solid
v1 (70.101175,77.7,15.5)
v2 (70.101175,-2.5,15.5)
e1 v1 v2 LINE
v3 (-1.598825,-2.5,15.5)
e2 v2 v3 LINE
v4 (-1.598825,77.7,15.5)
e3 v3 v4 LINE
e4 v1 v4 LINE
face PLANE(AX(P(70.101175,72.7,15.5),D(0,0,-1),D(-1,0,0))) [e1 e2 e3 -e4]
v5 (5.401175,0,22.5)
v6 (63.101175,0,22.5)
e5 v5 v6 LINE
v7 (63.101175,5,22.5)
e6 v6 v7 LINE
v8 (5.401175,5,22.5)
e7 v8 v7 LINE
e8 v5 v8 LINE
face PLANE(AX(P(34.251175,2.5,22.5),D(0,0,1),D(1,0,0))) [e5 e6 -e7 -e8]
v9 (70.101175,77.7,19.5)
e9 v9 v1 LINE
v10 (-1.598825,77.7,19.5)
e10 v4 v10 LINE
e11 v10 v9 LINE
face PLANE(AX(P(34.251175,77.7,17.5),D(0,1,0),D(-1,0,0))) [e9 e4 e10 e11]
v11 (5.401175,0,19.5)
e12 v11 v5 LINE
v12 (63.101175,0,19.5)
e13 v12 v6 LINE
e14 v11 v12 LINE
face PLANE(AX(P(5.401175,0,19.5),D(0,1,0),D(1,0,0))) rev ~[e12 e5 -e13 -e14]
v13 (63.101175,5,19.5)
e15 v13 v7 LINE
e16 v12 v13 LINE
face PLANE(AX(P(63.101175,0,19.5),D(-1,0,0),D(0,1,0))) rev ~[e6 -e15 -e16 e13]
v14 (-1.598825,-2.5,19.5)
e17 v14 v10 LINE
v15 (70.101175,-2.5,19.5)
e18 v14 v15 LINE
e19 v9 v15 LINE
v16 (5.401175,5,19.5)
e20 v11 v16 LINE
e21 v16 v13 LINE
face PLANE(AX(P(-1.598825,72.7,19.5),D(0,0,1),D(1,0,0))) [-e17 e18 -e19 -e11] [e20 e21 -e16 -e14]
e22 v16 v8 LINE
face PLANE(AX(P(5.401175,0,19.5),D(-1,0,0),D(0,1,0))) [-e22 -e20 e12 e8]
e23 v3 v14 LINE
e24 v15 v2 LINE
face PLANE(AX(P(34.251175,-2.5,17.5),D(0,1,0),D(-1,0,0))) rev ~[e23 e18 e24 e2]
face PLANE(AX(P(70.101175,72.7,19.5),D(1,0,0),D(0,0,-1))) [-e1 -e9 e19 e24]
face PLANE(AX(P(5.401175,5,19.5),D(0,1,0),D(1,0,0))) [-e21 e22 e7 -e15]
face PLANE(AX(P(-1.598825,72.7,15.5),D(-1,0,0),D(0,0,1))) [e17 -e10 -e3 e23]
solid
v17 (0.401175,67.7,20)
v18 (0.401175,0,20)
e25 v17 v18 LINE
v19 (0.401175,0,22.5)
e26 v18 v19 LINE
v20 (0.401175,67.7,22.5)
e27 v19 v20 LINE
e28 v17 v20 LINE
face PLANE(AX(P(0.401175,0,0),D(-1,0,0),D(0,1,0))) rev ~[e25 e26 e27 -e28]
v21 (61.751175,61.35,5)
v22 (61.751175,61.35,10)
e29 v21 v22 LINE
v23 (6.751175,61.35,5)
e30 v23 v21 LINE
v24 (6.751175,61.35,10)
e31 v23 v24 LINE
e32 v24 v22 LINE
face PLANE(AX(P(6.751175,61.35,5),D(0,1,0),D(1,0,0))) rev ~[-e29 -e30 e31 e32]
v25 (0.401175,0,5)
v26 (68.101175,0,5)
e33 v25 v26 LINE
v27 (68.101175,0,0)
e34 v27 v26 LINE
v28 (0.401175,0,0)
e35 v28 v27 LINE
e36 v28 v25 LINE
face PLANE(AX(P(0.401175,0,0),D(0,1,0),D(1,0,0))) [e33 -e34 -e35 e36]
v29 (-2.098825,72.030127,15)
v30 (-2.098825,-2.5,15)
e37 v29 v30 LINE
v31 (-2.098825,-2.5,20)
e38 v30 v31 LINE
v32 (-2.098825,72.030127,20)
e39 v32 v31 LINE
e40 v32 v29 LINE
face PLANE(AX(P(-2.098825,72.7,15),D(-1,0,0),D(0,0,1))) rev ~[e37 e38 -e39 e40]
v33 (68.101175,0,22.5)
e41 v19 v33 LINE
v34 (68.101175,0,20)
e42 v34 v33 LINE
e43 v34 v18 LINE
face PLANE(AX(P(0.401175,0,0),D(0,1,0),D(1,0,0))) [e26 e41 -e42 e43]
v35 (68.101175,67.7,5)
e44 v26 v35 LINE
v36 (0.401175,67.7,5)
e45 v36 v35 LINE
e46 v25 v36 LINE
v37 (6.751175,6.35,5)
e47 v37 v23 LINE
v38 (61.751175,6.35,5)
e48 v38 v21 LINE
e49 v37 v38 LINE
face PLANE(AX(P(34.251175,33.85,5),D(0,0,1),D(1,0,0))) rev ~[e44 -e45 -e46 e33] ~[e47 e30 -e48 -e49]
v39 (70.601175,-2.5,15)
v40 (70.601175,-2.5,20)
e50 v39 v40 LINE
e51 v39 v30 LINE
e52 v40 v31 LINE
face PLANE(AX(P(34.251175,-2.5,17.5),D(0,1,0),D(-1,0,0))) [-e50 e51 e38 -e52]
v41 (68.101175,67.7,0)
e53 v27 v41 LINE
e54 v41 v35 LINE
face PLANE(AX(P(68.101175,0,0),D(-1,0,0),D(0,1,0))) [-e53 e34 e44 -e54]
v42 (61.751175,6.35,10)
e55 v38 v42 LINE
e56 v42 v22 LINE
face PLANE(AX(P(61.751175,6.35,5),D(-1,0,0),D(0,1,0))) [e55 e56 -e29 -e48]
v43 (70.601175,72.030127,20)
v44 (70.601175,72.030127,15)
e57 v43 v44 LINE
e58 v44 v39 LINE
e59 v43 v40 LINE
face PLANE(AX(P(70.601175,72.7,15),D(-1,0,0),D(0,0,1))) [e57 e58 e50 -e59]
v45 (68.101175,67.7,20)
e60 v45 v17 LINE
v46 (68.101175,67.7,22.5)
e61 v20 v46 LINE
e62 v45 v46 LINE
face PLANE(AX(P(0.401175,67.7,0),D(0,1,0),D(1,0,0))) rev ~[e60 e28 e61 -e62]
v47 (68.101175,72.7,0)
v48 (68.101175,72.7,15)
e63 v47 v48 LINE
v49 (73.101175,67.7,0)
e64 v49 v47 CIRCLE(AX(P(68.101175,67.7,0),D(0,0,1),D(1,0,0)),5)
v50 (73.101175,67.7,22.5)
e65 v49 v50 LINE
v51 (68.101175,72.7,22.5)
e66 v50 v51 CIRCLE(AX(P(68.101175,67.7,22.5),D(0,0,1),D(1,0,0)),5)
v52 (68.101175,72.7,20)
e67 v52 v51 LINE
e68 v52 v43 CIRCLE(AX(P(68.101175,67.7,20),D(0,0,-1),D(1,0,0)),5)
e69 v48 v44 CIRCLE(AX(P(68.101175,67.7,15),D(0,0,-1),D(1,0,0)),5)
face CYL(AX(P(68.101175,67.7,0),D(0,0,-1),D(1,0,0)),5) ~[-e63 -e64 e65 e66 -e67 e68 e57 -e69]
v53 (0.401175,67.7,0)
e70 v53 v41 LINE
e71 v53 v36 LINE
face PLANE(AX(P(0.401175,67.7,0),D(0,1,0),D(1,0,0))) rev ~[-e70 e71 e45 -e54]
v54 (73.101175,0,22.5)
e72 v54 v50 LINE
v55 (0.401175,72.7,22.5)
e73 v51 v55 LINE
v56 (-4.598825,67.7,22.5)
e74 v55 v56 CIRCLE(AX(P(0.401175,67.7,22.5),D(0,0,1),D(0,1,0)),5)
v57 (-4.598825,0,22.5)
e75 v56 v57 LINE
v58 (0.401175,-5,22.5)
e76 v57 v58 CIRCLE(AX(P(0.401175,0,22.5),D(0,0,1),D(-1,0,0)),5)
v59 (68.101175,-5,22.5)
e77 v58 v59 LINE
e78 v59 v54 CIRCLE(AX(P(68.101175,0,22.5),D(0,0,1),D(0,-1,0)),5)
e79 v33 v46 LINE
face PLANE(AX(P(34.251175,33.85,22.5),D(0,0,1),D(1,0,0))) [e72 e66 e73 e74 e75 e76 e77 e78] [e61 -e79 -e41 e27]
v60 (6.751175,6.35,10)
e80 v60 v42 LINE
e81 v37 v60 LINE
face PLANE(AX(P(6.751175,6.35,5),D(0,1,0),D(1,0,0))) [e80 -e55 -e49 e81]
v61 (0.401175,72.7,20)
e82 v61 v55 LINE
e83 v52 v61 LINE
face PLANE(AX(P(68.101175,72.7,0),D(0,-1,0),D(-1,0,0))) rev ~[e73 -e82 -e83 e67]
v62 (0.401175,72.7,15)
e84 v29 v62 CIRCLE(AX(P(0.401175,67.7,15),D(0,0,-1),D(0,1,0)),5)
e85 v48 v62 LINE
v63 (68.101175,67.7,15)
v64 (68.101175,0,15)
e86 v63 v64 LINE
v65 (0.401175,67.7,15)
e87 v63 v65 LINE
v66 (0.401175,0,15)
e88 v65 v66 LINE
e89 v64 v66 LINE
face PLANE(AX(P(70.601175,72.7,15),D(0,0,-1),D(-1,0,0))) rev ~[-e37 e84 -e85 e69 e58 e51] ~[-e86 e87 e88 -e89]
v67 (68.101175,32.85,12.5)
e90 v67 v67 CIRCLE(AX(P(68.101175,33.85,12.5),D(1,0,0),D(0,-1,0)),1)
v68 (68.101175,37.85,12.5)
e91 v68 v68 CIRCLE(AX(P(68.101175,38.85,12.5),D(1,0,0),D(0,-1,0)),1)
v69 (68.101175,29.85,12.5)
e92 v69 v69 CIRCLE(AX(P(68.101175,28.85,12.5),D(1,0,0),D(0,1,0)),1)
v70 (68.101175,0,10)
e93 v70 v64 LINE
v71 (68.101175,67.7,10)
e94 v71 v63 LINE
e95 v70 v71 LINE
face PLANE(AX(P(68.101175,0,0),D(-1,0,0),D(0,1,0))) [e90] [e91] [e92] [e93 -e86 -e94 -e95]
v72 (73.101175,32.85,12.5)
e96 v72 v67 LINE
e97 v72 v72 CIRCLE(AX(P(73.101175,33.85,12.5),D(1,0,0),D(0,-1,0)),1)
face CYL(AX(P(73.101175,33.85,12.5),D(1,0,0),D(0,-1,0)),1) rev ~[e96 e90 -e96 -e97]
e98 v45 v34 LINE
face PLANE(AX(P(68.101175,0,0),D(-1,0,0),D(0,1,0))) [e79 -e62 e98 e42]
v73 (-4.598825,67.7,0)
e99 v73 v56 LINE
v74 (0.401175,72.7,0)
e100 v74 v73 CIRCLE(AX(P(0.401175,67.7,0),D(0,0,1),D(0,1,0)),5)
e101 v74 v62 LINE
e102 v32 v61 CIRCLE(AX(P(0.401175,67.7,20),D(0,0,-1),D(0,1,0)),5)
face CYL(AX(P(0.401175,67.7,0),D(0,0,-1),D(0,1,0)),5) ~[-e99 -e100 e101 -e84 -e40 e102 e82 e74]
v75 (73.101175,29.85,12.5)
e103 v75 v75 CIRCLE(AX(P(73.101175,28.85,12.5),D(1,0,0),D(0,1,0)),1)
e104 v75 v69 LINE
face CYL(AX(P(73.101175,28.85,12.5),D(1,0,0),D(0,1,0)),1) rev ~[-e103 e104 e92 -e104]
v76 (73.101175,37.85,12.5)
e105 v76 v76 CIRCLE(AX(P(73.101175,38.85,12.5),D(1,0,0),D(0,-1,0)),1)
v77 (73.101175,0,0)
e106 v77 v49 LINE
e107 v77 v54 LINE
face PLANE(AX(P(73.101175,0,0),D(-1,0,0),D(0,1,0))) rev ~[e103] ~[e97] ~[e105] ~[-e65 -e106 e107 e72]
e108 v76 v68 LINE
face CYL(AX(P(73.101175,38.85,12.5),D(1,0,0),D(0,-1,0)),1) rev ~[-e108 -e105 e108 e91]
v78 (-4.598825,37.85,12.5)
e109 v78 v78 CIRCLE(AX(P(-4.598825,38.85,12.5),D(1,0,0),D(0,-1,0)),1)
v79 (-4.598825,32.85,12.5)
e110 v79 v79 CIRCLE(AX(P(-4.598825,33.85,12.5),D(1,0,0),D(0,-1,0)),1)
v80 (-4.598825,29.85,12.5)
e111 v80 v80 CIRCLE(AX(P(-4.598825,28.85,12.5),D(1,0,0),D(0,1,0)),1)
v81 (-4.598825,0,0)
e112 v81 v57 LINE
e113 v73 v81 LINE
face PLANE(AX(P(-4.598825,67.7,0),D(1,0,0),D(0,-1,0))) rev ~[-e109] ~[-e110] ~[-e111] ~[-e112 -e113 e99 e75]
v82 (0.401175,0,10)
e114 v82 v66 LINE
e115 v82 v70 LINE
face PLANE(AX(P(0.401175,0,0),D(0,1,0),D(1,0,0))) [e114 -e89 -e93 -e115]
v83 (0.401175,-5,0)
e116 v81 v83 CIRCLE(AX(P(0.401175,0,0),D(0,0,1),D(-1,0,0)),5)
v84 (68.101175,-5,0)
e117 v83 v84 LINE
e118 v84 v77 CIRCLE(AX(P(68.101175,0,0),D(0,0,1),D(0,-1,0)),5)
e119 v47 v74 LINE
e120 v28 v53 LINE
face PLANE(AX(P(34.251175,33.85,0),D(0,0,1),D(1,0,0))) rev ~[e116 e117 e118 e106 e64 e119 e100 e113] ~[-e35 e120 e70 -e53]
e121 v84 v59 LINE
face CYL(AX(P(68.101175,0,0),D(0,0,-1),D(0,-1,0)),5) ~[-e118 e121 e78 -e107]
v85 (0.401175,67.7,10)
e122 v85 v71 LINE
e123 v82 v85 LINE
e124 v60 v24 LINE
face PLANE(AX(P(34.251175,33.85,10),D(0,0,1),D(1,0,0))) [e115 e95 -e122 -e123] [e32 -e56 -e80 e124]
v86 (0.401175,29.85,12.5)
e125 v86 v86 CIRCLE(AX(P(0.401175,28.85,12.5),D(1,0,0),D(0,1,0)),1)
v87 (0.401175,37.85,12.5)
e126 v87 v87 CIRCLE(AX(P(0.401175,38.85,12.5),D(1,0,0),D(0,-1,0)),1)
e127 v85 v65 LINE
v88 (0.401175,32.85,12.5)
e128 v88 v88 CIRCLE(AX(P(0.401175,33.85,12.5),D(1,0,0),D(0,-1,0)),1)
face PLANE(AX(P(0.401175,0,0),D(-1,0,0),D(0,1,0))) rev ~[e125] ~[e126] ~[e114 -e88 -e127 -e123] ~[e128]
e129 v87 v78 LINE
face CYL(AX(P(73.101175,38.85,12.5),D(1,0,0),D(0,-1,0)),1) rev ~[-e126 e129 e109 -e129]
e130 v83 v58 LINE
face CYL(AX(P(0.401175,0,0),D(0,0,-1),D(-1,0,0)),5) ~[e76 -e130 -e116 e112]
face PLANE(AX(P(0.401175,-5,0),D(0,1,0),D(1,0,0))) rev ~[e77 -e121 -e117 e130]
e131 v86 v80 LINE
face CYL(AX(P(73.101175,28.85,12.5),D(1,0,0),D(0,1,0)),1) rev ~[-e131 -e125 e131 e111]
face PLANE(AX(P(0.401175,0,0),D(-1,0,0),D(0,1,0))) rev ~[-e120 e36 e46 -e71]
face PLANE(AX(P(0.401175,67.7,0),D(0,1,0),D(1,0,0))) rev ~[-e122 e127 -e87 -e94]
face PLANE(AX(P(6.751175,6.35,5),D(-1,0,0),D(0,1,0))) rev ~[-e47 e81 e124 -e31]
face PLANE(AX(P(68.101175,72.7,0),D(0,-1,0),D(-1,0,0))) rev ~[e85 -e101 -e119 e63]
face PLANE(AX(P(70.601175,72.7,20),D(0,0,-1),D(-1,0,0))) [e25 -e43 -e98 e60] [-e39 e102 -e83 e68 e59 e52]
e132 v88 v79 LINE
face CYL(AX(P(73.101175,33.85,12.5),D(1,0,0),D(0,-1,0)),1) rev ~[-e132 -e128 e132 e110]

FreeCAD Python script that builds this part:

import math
import FreeCAD as App
import Part
import Sketcher

V = App.Vector


def add_polygon(sketch, points):
    """Adds a closed chain of lines whose ends are joined by coincident constraints."""
    first, n = sketch.GeometryCount, len(points)
    for a, b in zip(points, points[1:] + points[:1]):
        sketch.addGeometry(Part.LineSegment(App.Vector(*a, 0), App.Vector(*b, 0)), False)
    for i in range(n):
        sketch.addConstraint(Sketcher.Constraint("Coincident", first + i, 2, first + (i + 1) % n, 1))

doc = App.newDocument("Part")
body = doc.addObject("PartDesign::Body", "Body")

# Sketch on XY plane
sketch1 = doc.addObject("Sketcher::SketchObject", "Sketch")
body.addObject(sketch1)
sketch1.AttachmentSupport = (doc.XY_Plane, [""])
sketch1.MapMode = "FlatFace"
sketch1.addGeometry(Part.LineSegment(V(68.101175, 72.7, 0), V(0.401175, 72.7, 0)), False)  # 0
sketch1.addGeometry(Part.ArcOfCircle(Part.Circle(V(0.401175, 67.7, 0), V(0, 0, 1), 5), math.radians(90), math.radians(180)), False)  # 1
sketch1.addGeometry(Part.LineSegment(V(-4.598825, 67.7, 0), V(-4.598825, 0, 0)), False)  # 2
sketch1.addGeometry(Part.ArcOfCircle(Part.Circle(V(0.401175, 0, 0), V(0, 0, 1), 5), math.radians(180), math.radians(270)), False)  # 3
sketch1.addGeometry(Part.LineSegment(V(0.401175, -5, 0), V(68.101175, -5, 0)), False)  # 4
sketch1.addGeometry(Part.ArcOfCircle(Part.Circle(V(68.101175, 0, 0), V(0, 0, 1), 5), math.radians(-90), math.radians(0)), False)  # 5
sketch1.addGeometry(Part.LineSegment(V(73.101175, 0, 0), V(73.101175, 67.7, 0)), False)  # 6
sketch1.addGeometry(Part.ArcOfCircle(Part.Circle(V(68.101175, 67.7, 0), V(0, 0, 1), 5), math.radians(0), math.radians(90)), False)  # 7
add_polygon(sketch1, [(68.101175, 0), (0.401175, 0), (0.401175, 67.7), (68.101175, 67.7)])  # lines 8-11
sketch1.addConstraint(Sketcher.Constraint("Tangent", 0, 2, 1, 1))
sketch1.addConstraint(Sketcher.Constraint("Tangent", 1, 2, 2, 1))
sketch1.addConstraint(Sketcher.Constraint("Tangent", 2, 2, 3, 1))
sketch1.addConstraint(Sketcher.Constraint("Tangent", 3, 2, 4, 1))
sketch1.addConstraint(Sketcher.Constraint("Tangent", 4, 2, 5, 1))
sketch1.addConstraint(Sketcher.Constraint("Tangent", 5, 2, 6, 1))
sketch1.addConstraint(Sketcher.Constraint("Tangent", 6, 2, 7, 1))
sketch1.addConstraint(Sketcher.Constraint("Tangent", 7, 2, 0, 1))
sketch1.addConstraint(Sketcher.Constraint("Horizontal", 0))
sketch1.addConstraint(Sketcher.Constraint("Vertical", 2))
sketch1.addConstraint(Sketcher.Constraint("Horizontal", 4))
sketch1.addConstraint(Sketcher.Constraint("Vertical", 6))
sketch1.addConstraint(Sketcher.Constraint("Horizontal", 8))
sketch1.addConstraint(Sketcher.Constraint("Vertical", 9))
sketch1.addConstraint(Sketcher.Constraint("Horizontal", 10))
sketch1.addConstraint(Sketcher.Constraint("Vertical", 11))
sketch1.addConstraint(Sketcher.Constraint("Coincident", 8, 2, 3, 3))
sketch1.addConstraint(Sketcher.Constraint("Coincident", 9, 2, 1, 3))
sketch1.addConstraint(Sketcher.Constraint("Coincident", 10, 2, 7, 3))
sketch1.addConstraint(Sketcher.Constraint("Equal", 3, 5))
sketch1.addConstraint(Sketcher.Constraint("PointOnObject", 3, 3, -1))
sketch1.addConstraint(Sketcher.Constraint("Equal", 10, 2))
sketch1.addConstraint(Sketcher.Constraint("Radius", 1, 5.0))
sketch1.addConstraint(Sketcher.Constraint("DistanceX", 0, 2, 0, 1, 67.7))
sketch1.addConstraint(Sketcher.Constraint("DistanceX", -1, 1, 1, 3, 0.401175))
pad1 = doc.addObject("PartDesign::Pad", "Pad")
body.addObject(pad1)
pad1.Profile = sketch1
pad1.Length = 22.5

# Sketch on XY plane
sketch2 = doc.addObject("Sketcher::SketchObject", "Sketch001")
body.addObject(sketch2)
sketch2.AttachmentSupport = (doc.XY_Plane, [""])
sketch2.MapMode = "FlatFace"
sketch2.AttachmentOffset = App.Placement(V(0, 0, 5), App.Rotation())
add_polygon(sketch2, [(0.401175, 67.7), (0.401175, 0), (68.101175, 0), (68.101175, 67.7)])  # lines 0-3
add_polygon(sketch2, [(61.751175, 6.35), (6.751175, 6.35), (6.751175, 61.35), (61.751175, 61.35)])  # lines 4-7
sketch2.addConstraint(Sketcher.Constraint("Vertical", 0))
sketch2.addConstraint(Sketcher.Constraint("Horizontal", 1))
sketch2.addConstraint(Sketcher.Constraint("Vertical", 2))
sketch2.addConstraint(Sketcher.Constraint("Horizontal", 3))
sketch2.addConstraint(Sketcher.Constraint("Horizontal", 4))
sketch2.addConstraint(Sketcher.Constraint("Vertical", 5))
sketch2.addConstraint(Sketcher.Constraint("Horizontal", 6))
sketch2.addConstraint(Sketcher.Constraint("Vertical", 7))
sketch2.addConstraint(Sketcher.Constraint("PointOnObject", 0, 2, -1))
sketch2.addConstraint(Sketcher.Constraint("Equal", 3, 0))
sketch2.addConstraint(Sketcher.Constraint("Equal", 6, 5))
sketch2.addConstraint(Sketcher.Constraint("DistanceX", 4, 2, 4, 1, 55.0))
sketch2.addConstraint(Sketcher.Constraint("DistanceX", 1, 1, 1, 2, 67.7))
sketch2.addConstraint(Sketcher.Constraint("DistanceY", -1, 1, 4, 2, 6.35))
sketch2.addConstraint(Sketcher.Constraint("DistanceX", 0, 2, 4, 2, 6.35))
sketch2.addConstraint(Sketcher.Constraint("DistanceX", -1, 1, 0, 2, 0.401175))
pad2 = doc.addObject("PartDesign::Pad", "Pad001")
body.addObject(pad2)
pad2.Profile = sketch2
pad2.Length = 5

# Sketch on YZ plane
sketch3 = doc.addObject("Sketcher::SketchObject", "Sketch002")
body.addObject(sketch3)
sketch3.AttachmentSupport = (doc.YZ_Plane, [""])
sketch3.MapMode = "FlatFace"
sketch3.AttachmentOffset = App.Placement(V(0, 0, 73.101175), App.Rotation())
sketch3.addGeometry(Part.Circle(V(33.85, 12.5, 0), V(0, 0, 1), 1), False)
sketch3.addGeometry(Part.Circle(V(28.85, 12.5, 0), V(0, 0, 1), 1), False)
sketch3.addGeometry(Part.Circle(V(38.85, 12.5, 0), V(0, 0, 1), 1), False)
sketch3.addConstraint(Sketcher.Constraint("Equal", 0, 1))
sketch3.addConstraint(Sketcher.Constraint("Equal", 1, 2))
sketch3.addConstraint(Sketcher.Constraint("Horizontal", 0, 3, 1, 3))
sketch3.addConstraint(Sketcher.Constraint("Horizontal", 1, 3, 2, 3))
sketch3.addConstraint(Sketcher.Constraint("Diameter", 0, 2.0))
sketch3.addConstraint(Sketcher.Constraint("DistanceX", 1, 3, 0, 3, 5.0))
sketch3.addConstraint(Sketcher.Constraint("DistanceX", 0, 3, 2, 3, 5.0))
sketch3.addConstraint(Sketcher.Constraint("DistanceY", -1, 1, 0, 3, 12.5))
sketch3.addConstraint(Sketcher.Constraint("DistanceX", -1, 1, 0, 3, 33.85))
pocket1 = doc.addObject("PartDesign::Pocket", "Pocket")
body.addObject(pocket1)
pocket1.Profile = sketch3
pocket1.Length = 100

# Sketch on XZ plane
sketch4 = doc.addObject("Sketcher::SketchObject", "Sketch003")
body.addObject(sketch4)
sketch4.AttachmentSupport = (doc.XZ_Plane, [""])
sketch4.MapMode = "FlatFace"
sketch4.AttachmentOffset = App.Placement(V(0, 0, -72.7), App.Rotation())
add_polygon(sketch4, [(70.601175, 20), (70.601175, 15), (-2.098825, 15), (-2.098825, 20)])  # lines 0-3
sketch4.addConstraint(Sketcher.Constraint("Vertical", 0))
sketch4.addConstraint(Sketcher.Constraint("Horizontal", 1))
sketch4.addConstraint(Sketcher.Constraint("Vertical", 2))
sketch4.addConstraint(Sketcher.Constraint("Horizontal", 3))
sketch4.addConstraint(Sketcher.Constraint("DistanceY", 0, 2, 0, 1, 5.0))
sketch4.addConstraint(Sketcher.Constraint("DistanceX", 1, 2, 1, 1, 72.7))
sketch4.addConstraint(Sketcher.Constraint("DistanceY", -1, 1, 0, 2, 15.0))
sketch4.addConstraint(Sketcher.Constraint("DistanceX", -1, 1, 0, 2, 70.601175))
pocket2 = doc.addObject("PartDesign::Pocket", "Pocket001")
body.addObject(pocket2)
pocket2.Profile = sketch4
pocket2.Length = 75.2
pocket2.Reversed = True
body2 = doc.addObject("PartDesign::Body", "Body001")

# Sketch on XZ plane
sketch5 = doc.addObject("Sketcher::SketchObject", "Sketch004")
body2.addObject(sketch5)
sketch5.AttachmentSupport = (doc.getObject("XZ_Plane001"), [""])
sketch5.MapMode = "FlatFace"
sketch5.AttachmentOffset = App.Placement(V(0, 0, -72.7), App.Rotation())
add_polygon(sketch5, [(70.101175, 15.5), (-1.598825, 15.5), (-1.598825, 19.5), (70.101175, 19.5)])  # lines 0-3
sketch5.addConstraint(Sketcher.Constraint("Horizontal", 0))
sketch5.addConstraint(Sketcher.Constraint("Vertical", 1))
sketch5.addConstraint(Sketcher.Constraint("Horizontal", 2))
sketch5.addConstraint(Sketcher.Constraint("Vertical", 3))
sketch5.addConstraint(Sketcher.Constraint("DistanceY", 1, 1, 1, 2, 4.0))
sketch5.addConstraint(Sketcher.Constraint("DistanceX", 0, 2, 0, 1, 71.7))
sketch5.addConstraint(Sketcher.Constraint("DistanceY", -1, 1, 0, 2, 15.5))
sketch5.addConstraint(Sketcher.Constraint("DistanceX", 0, 2, -1, 1, 1.598825))
pad3 = doc.addObject("PartDesign::Pad", "Pad002")
body2.addObject(pad3)
pad3.Profile = sketch5
pad3.Type = "TwoLengths"
pad3.Length = 5
pad3.Length2 = 75.2
pad3.Reversed = True

# Sketch on XY plane
sketch6 = doc.addObject("Sketcher::SketchObject", "Sketch005")
body2.addObject(sketch6)
sketch6.AttachmentSupport = (doc.getObject("XY_Plane001"), [""])
sketch6.MapMode = "FlatFace"
sketch6.AttachmentOffset = App.Placement(V(0, 0, 19.5), App.Rotation())
add_polygon(sketch6, [(5.401175, 5), (5.401175, 0), (63.101175, 0), (63.101175, 5)])  # lines 0-3
sketch6.addConstraint(Sketcher.Constraint("Vertical", 0))
sketch6.addConstraint(Sketcher.Constraint("Horizontal", 1))
sketch6.addConstraint(Sketcher.Constraint("Vertical", 2))
sketch6.addConstraint(Sketcher.Constraint("Horizontal", 3))
sketch6.addConstraint(Sketcher.Constraint("PointOnObject", 0, 2, -1))
sketch6.addConstraint(Sketcher.Constraint("DistanceY", 0, 2, 0, 1, 5.0))
sketch6.addConstraint(Sketcher.Constraint("DistanceX", 1, 1, 1, 2, 57.7))
sketch6.addConstraint(Sketcher.Constraint("DistanceX", -1, 1, 0, 2, 5.401175))
pad4 = doc.addObject("PartDesign::Pad", "Pad003")
body2.addObject(pad4)
pad4.Profile = sketch6
pad4.Length = 3

doc.recompute()
